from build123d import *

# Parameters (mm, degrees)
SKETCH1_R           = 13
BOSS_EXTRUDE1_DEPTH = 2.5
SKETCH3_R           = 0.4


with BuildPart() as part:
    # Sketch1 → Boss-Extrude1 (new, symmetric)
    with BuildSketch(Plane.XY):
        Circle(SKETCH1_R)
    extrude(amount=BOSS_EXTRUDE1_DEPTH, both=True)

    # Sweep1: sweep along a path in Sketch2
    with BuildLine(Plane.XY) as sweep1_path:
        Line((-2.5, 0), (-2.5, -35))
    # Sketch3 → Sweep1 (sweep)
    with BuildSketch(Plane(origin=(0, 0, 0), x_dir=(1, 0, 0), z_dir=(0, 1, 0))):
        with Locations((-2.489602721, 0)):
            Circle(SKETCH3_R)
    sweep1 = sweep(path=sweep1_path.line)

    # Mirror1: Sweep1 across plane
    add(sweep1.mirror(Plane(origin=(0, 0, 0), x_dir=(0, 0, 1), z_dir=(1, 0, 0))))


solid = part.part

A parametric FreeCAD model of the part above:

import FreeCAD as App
import Part
import Sketcher

V = App.Vector
Q = App.Units.Quantity

doc = App.newDocument("Part")
body = doc.addObject("PartDesign::Body", "Body")

sketch1 = body.newObject("Sketcher::SketchObject", "Sketch")
sketch1.AttachmentSupport = (doc.getObject("XY_Plane"), [""])
sketch1.MapMode = "FlatFace"
sketch1.addGeometry(Part.Circle(V(0, 0, 0), V(0, 0, 1), 13), False)
sketch1.addConstraint([
    Sketcher.Constraint("Coincident", 0, 3, -1, 1),
    Sketcher.Constraint("Diameter", 0, Q("26 mm")),
])
pad1 = body.newObject("PartDesign::Pad", "Pad")
pad1.Profile = sketch1
pad1.Length = 5
pad1.Midplane = True

sketch2 = body.newObject("Sketcher::SketchObject", "Sketch001")
sketch2.AttachmentSupport = (doc.getObject("XZ_Plane"), [""])
sketch2.MapMode = "FlatFace"
sketch2.addGeometry(Part.Circle(V(-2.49, 0, 0), V(0, 0, 1), 0.4), False)
sketch2.addConstraint([
    Sketcher.Constraint("PointOnObject", 0, 3, -1),
    Sketcher.Constraint("Diameter", 0, Q("0.8 mm")),
    Sketcher.Constraint("DistanceX", 0, 3, -1, 1, Q("2.489603 mm")),
])

sketch3 = body.newObject("Sketcher::SketchObject", "Sketch002")
sketch3.AttachmentSupport = (doc.getObject("XY_Plane"), [""])
sketch3.MapMode = "FlatFace"
sketch3.addGeometry(Part.LineSegment(V(-2, 0, 0), V(-2, -35, 0)), False)
sketch3.addConstraint([
    Sketcher.Constraint("Vertical", 0),
    Sketcher.Constraint("PointOnObject", 0, 1, -1),
    Sketcher.Constraint("DistanceY", 0, 2, 0, 1, Q("35 mm")),
    Sketcher.Constraint("DistanceX", 0, 1, -1, 1, Q("2.5 mm")),
])
doc.recompute()

additivepipe = body.newObject("PartDesign::AdditivePipe", "AdditivePipe")
additivepipe.Profile = sketch2
additivepipe.Spine = (sketch3, ["Edge1"])
doc.recompute()

mirrored = body.newObject("PartDesign::Mirrored", "Mirrored")
mirrored.Originals = [additivepipe]
mirrored.MirrorPlane = (doc.getObject("YZ_Plane"), [""])
body.Tip = mirrored

doc.recompute()
